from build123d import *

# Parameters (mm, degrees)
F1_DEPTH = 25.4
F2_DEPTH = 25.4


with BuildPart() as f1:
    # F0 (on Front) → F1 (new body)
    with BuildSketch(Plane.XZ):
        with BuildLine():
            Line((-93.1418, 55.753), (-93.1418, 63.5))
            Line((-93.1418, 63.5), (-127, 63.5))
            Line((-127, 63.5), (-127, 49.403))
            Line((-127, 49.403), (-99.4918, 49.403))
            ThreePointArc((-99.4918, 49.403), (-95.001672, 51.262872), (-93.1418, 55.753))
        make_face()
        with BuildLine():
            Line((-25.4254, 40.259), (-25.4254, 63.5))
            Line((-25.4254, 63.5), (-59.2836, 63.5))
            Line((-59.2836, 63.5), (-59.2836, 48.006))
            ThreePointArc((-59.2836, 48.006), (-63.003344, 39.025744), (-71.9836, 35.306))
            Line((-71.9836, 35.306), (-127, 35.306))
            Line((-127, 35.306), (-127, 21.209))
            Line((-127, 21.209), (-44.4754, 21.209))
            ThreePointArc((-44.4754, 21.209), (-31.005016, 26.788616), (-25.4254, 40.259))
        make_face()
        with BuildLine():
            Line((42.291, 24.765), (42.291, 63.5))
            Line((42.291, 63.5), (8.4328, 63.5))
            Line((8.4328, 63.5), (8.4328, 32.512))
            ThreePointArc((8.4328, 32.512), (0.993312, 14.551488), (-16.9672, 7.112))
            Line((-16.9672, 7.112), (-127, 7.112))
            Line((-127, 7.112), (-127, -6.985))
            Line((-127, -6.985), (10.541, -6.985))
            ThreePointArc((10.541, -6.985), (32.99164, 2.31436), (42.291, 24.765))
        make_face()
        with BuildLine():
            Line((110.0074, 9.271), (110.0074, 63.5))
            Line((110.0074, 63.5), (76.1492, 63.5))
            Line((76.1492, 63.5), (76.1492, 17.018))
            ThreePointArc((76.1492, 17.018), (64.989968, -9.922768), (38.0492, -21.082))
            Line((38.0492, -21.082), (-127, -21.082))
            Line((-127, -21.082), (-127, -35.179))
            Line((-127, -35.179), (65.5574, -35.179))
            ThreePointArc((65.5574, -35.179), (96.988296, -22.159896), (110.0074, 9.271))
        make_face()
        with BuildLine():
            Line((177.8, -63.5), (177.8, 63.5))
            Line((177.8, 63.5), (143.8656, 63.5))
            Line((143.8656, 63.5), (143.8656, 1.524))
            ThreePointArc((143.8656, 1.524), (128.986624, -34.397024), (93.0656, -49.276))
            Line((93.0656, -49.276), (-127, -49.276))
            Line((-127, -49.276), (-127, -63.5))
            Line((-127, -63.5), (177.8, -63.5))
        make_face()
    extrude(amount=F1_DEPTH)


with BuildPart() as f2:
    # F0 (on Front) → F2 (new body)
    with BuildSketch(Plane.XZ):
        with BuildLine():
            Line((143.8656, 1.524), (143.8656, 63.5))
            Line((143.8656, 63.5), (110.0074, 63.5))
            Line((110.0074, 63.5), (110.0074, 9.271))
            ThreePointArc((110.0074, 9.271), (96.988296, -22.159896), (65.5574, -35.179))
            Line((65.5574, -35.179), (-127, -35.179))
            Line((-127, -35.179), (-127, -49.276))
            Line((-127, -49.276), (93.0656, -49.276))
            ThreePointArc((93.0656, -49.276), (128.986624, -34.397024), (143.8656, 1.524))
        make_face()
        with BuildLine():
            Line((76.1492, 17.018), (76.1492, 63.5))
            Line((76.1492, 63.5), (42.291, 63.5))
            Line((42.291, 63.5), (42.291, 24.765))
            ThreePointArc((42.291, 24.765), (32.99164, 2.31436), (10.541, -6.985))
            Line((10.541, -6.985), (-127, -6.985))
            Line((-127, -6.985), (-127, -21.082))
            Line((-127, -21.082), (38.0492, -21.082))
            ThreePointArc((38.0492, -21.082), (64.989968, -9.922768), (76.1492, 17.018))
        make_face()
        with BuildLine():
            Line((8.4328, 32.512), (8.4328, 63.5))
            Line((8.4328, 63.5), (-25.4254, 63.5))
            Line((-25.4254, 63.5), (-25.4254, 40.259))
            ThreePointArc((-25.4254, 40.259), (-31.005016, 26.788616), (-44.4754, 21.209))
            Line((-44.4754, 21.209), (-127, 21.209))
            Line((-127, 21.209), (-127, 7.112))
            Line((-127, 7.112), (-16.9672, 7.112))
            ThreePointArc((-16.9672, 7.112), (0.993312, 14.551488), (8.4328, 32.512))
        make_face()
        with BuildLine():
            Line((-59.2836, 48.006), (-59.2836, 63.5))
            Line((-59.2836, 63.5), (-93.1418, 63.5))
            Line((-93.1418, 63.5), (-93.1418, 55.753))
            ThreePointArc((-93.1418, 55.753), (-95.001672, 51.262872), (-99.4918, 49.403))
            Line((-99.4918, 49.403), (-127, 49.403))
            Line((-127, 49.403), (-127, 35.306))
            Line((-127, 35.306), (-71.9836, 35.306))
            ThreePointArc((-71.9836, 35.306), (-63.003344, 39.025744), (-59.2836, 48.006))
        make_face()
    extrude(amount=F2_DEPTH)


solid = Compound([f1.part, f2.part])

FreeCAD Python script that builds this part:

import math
import FreeCAD as App
import Part
import Sketcher
from FreeCAD import Vector
Q = App.Units.Quantity

doc = App.newDocument("Part")
params = doc.addObject("Spreadsheet::Sheet", "Params")
for row, (alias, value) in enumerate([
    ("sketch1_radius", "1 in"),
    ("sketch1_radius2", "2.0000001 in"),
    ("sketch1_radius3", "0.5 in"),
    ("sketch1_radius4", "1.5 in"),
    ("sketch1_width", "12 in"),
    ("pad1_length", "1 in"),
    ("sketch2_radius", "2.0000001 in"),
    ("sketch2_radius2", "1 in"),
    ("sketch2_radius3", "1.5 in"),
    ("sketch2_radius4", "0.5 in"),
    ("sketch2_radius5", "1.7500001 in"),
    ("pad2_length", "1 in"),
], start=1):
    params.set(f"A{row}", alias)
    params.set(f"B{row}", "=" + value)
    params.setAlias(f"B{row}", alias)

body = doc.addObject("PartDesign::Body", "Body")
body.AllowCompound = True

# Sketch on XZ plane
sketch1 = doc.addObject("Sketcher::SketchObject", "Sketch")
body.addObject(sketch1)
sketch1.AttachmentSupport = (doc.XZ_Plane, [""])
sketch1.MapMode = "FlatFace"
sketch1.addGeometry([
    Part.LineSegment(Vector(-93.1418, 55.753, 0), Vector(-93.1418, 63.5, 0)),  # 0
    Part.LineSegment(Vector(-93.1418, 63.5, 0), Vector(-127, 63.5, 0)),  # 1
    Part.LineSegment(Vector(-127, 63.5, 0), Vector(-127, 49.403, 0)),  # 2
    Part.LineSegment(Vector(-127, 49.403, 0), Vector(-99.4918, 49.403, 0)),  # 3
    Part.ArcOfCircle(Part.Circle(Vector(-99.4918, 55.753, 0), Vector(0, 0, 1), 6.35), math.radians(-89.999998), math.radians(-0.000002)),  # 4
    Part.LineSegment(Vector(-25.4254, 40.259, 0), Vector(-25.4254, 63.5, 0)),  # 5
    Part.LineSegment(Vector(-25.4254, 63.5, 0), Vector(-59.2836, 63.5, 0)),  # 6
    Part.LineSegment(Vector(-59.2836, 63.5, 0), Vector(-59.2836, 48.006, 0)),  # 7
    Part.ArcOfCircle(Part.Circle(Vector(-71.9836, 48.006, 0), Vector(0, 0, 1), 12.7), math.radians(-89.999998), math.radians(-0.000002)),  # 8
    Part.LineSegment(Vector(-71.9836, 35.306, 0), Vector(-127, 35.306, 0)),  # 9
    Part.LineSegment(Vector(-127, 35.306, 0), Vector(-127, 21.209, 0)),  # 10
    Part.LineSegment(Vector(-127, 21.209, 0), Vector(-44.4754, 21.209, 0)),  # 11
    Part.ArcOfCircle(Part.Circle(Vector(-44.475401, 40.259001, 0), Vector(0, 0, 1), 19.050001), math.radians(-89.999998), math.radians(-0.000002)),  # 12
    Part.LineSegment(Vector(42.291, 24.765, 0), Vector(42.291, 63.5, 0)),  # 13
    Part.LineSegment(Vector(42.291, 63.5, 0), Vector(8.4328, 63.5, 0)),  # 14
    Part.LineSegment(Vector(8.4328, 63.5, 0), Vector(8.4328, 32.512, 0)),  # 15
    Part.ArcOfCircle(Part.Circle(Vector(-16.967201, 32.512001, 0), Vector(0, 0, 1), 25.400001), math.radians(-89.999998), math.radians(-0.000002)),  # 16
    Part.LineSegment(Vector(-16.9672, 7.112, 0), Vector(-127, 7.112, 0)),  # 17
    Part.LineSegment(Vector(-127, 7.112, 0), Vector(-127, -6.985, 0)),  # 18
    Part.LineSegment(Vector(-127, -6.985, 0), Vector(10.541, -6.985, 0)),  # 19
    Part.ArcOfCircle(Part.Circle(Vector(10.540999, 24.765001, 0), Vector(0, 0, 1), 31.750001), math.radians(-89.999998), math.radians(-0.000002)),  # 20
    Part.LineSegment(Vector(110.0074, 9.271, 0), Vector(110.0074, 63.5, 0)),  # 21
    Part.LineSegment(Vector(110.0074, 63.5, 0), Vector(76.1492, 63.5, 0)),  # 22
    Part.LineSegment(Vector(76.1492, 63.5, 0), Vector(76.1492, 17.018, 0)),  # 23
    Part.ArcOfCircle(Part.Circle(Vector(38.049199, 17.018001, 0), Vector(0, 0, 1), 38.100001), math.radians(-89.999998), math.radians(-0.000002)),  # 24
    Part.LineSegment(Vector(38.0492, -21.082, 0), Vector(-127, -21.082, 0)),  # 25
    Part.LineSegment(Vector(-127, -21.082, 0), Vector(-127, -35.179, 0)),  # 26
    Part.LineSegment(Vector(-127, -35.179, 0), Vector(65.5574, -35.179, 0)),  # 27
    Part.ArcOfCircle(Part.Circle(Vector(65.557399, 9.271001, 0), Vector(0, 0, 1), 44.450001), math.radians(-89.999998), math.radians(-0.000002)),  # 28
    Part.LineSegment(Vector(177.8, -63.5, 0), Vector(177.8, 63.5, 0)),  # 29
    Part.LineSegment(Vector(177.8, 63.5, 0), Vector(143.8656, 63.5, 0)),  # 30
    Part.LineSegment(Vector(143.8656, 63.5, 0), Vector(143.8656, 1.524, 0)),  # 31
    Part.ArcOfCircle(Part.Circle(Vector(93.065598, 1.524002, 0), Vector(0, 0, 1), 50.800002), math.radians(-89.999998), math.radians(-0.000002)),  # 32
    Part.LineSegment(Vector(93.0656, -49.276, 0), Vector(-127, -49.276, 0)),  # 33
    Part.LineSegment(Vector(-127, -49.276, 0), Vector(-127, -63.5, 0)),  # 34
    Part.LineSegment(Vector(-127, -63.5, 0), Vector(177.8, -63.5, 0)),  # 35
], False)
sketch1.addConstraint([
    Sketcher.Constraint("Coincident", 0, 2, 1, 1),
    Sketcher.Constraint("Coincident", 1, 2, 2, 1),
    Sketcher.Constraint("Coincident", 2, 2, 3, 1),
    Sketcher.Constraint("Tangent", 3, 2, 4, 1),
    Sketcher.Constraint("Tangent", 4, 2, 0, 1),
    Sketcher.Constraint("Coincident", 5, 2, 6, 1),
    Sketcher.Constraint("Coincident", 6, 2, 7, 1),
    Sketcher.Constraint("Tangent", 7, 2, 8, 2),
    Sketcher.Constraint("Tangent", 8, 1, 9, 1),
    Sketcher.Constraint("Coincident", 9, 2, 10, 1),
    Sketcher.Constraint("Coincident", 10, 2, 11, 1),
    Sketcher.Constraint("Tangent", 11, 2, 12, 1),
    Sketcher.Constraint("Tangent", 12, 2, 5, 1),
    Sketcher.Constraint("Coincident", 13, 2, 14, 1),
    Sketcher.Constraint("Coincident", 14, 2, 15, 1),
    Sketcher.Constraint("Tangent", 15, 2, 16, 2),
    Sketcher.Constraint("Tangent", 16, 1, 17, 1),
    Sketcher.Constraint("Coincident", 17, 2, 18, 1),
    Sketcher.Constraint("Coincident", 18, 2, 19, 1),
    Sketcher.Constraint("Tangent", 19, 2, 20, 1),
    Sketcher.Constraint("Tangent", 20, 2, 13, 1),
    Sketcher.Constraint("Coincident", 21, 2, 22, 1),
    Sketcher.Constraint("Coincident", 22, 2, 23, 1),
    Sketcher.Constraint("Tangent", 23, 2, 24, 2),
    Sketcher.Constraint("Tangent", 24, 1, 25, 1),
    Sketcher.Constraint("Coincident", 25, 2, 26, 1),
    Sketcher.Constraint("Coincident", 26, 2, 27, 1),
    Sketcher.Constraint("Tangent", 27, 2, 28, 1),
    Sketcher.Constraint("Tangent", 28, 2, 21, 1),
    Sketcher.Constraint("Coincident", 29, 2, 30, 1),
    Sketcher.Constraint("Coincident", 30, 2, 31, 1),
    Sketcher.Constraint("Tangent", 31, 2, 32, 2),
    Sketcher.Constraint("Tangent", 32, 1, 33, 1),
    Sketcher.Constraint("Coincident", 33, 2, 34, 1),
    Sketcher.Constraint("Coincident", 34, 2, 35, 1),
    Sketcher.Constraint("Coincident", 35, 2, 29, 1),
    Sketcher.Constraint("Vertical", 0),
    Sketcher.Constraint("Horizontal", 1),
    Sketcher.Constraint("Vertical", 2),
    Sketcher.Constraint("Horizontal", 3),
    Sketcher.Constraint("Vertical", 5),
    Sketcher.Constraint("Horizontal", 6),
    Sketcher.Constraint("Vertical", 7),
    Sketcher.Constraint("Horizontal", 9),
    Sketcher.Constraint("Vertical", 10),
    Sketcher.Constraint("Horizontal", 11),
    Sketcher.Constraint("Vertical", 13),
    Sketcher.Constraint("Horizontal", 14),
    Sketcher.Constraint("Vertical", 15),
    Sketcher.Constraint("Horizontal", 17),
    Sketcher.Constraint("Vertical", 18),
    Sketcher.Constraint("Horizontal", 19),
    Sketcher.Constraint("Vertical", 21),
    Sketcher.Constraint("Horizontal", 22),
    Sketcher.Constraint("Vertical", 23),
    Sketcher.Constraint("Horizontal", 25),
    Sketcher.Constraint("Vertical", 26),
    Sketcher.Constraint("Horizontal", 27),
    Sketcher.Constraint("Vertical", 29),
    Sketcher.Constraint("Horizontal", 30),
    Sketcher.Constraint("Vertical", 31),
    Sketcher.Constraint("Horizontal", 33),
    Sketcher.Constraint("Vertical", 34),
    Sketcher.Constraint("Horizontal", 35),
    Sketcher.Constraint("Symmetric", 1, 2, 34, 2, -1),
    Sketcher.Constraint("Horizontal", 1, 2, 5, 2),
    Sketcher.Constraint("Horizontal", 6, 2, 13, 2),
    Sketcher.Constraint("Horizontal", 14, 2, 21, 2),
    Sketcher.Constraint("Horizontal", 22, 2, 29, 2),
    Sketcher.Constraint("Vertical", 2, 2, 9, 2),
    Sketcher.Constraint("Vertical", 10, 2, 17, 2),
    Sketcher.Constraint("Vertical", 18, 2, 25, 2),
    Sketcher.Constraint("Equal", 1, 6),
    Sketcher.Constraint("Equal", 6, 14),
    Sketcher.Constraint("Equal", 14, 22),
    Sketcher.Constraint("Equal", 2, 10),
    Sketcher.Constraint("Equal", 10, 18),
    Sketcher.Constraint("Equal", 18, 26),
    Sketcher.Constraint("Radius", 16, Q("1 in")),
    Sketcher.Constraint("Radius", 32, Q("2.0000001 in")),
    Sketcher.Constraint("Radius", 8, Q("0.5 in")),
    Sketcher.Constraint("Radius", 24, Q("1.5 in")),
    Sketcher.Constraint("DistanceX", 35, 1, 35, 2, Q("12 in")),
    Sketcher.Constraint("DistanceY", 29, 1, 29, 2, Q("5 in")),
    Sketcher.Constraint("Radius", 4, Q("0.25 in")),
    Sketcher.Constraint("Radius", 12, Q("0.75 in")),
    Sketcher.Constraint("Radius", 20, Q("1.25 in")),
    Sketcher.Constraint("Radius", 28, Q("1.7500001 in")),
    Sketcher.Constraint("DistanceX", 1, 2, -1, 1, Q("5 in")),
    Sketcher.Constraint("DistanceY", 7, 2, 7, 1, Q("0.61 in")),
    Sketcher.Constraint("DistanceY", 15, 2, 15, 1, Q("1.22 in")),
    Sketcher.Constraint("DistanceY", 23, 2, 23, 1, Q("1.83 in")),
    Sketcher.Constraint("DistanceY", 31, 2, 31, 1, Q("2.44 in")),
    Sketcher.Constraint("DistanceX", 1, 2, 1, 1, Q("1.333 in")),
    Sketcher.Constraint("DistanceX", 9, 2, 9, 1, Q("2.166 in")),
    Sketcher.Constraint("DistanceX", 17, 2, 17, 1, Q("4.332 in")),
    Sketcher.Constraint("DistanceX", 25, 2, 25, 1, Q("6.498 in")),
    Sketcher.Constraint("DistanceX", 30, 2, 30, 1, Q("1.336 in")),
    Sketcher.Constraint("DistanceY", 0, 1, 0, 2, Q("0.305 in")),
])
sketch1.setExpression("Constraints[78]", "Params.sketch1_radius")
sketch1.setExpression("Constraints[79]", "Params.sketch1_radius2")
sketch1.setExpression("Constraints[80]", "Params.sketch1_radius3")
sketch1.setExpression("Constraints[81]", "Params.sketch1_radius4")
sketch1.setExpression("Constraints[82]", "Params.sketch1_width")
pad1 = doc.addObject("PartDesign::Pad", "Pad")
body.addObject(pad1)
pad1.Profile = sketch1
pad1.setExpression("Length", "Params.pad1_length")
body2 = doc.addObject("PartDesign::Body", "Body001")
body2.AllowCompound = True

# Sketch on XZ plane
sketch2 = doc.addObject("Sketcher::SketchObject", "Sketch001")
body2.addObject(sketch2)
sketch2.AttachmentSupport = (doc.getObject("XZ_Plane001"), [""])
sketch2.MapMode = "FlatFace"
sketch2.addGeometry([
    Part.LineSegment(Vector(143.8656, 1.524, 0), Vector(143.8656, 63.5, 0)),  # 0
    Part.LineSegment(Vector(143.8656, 63.5, 0), Vector(110.0074, 63.5, 0)),  # 1
    Part.LineSegment(Vector(110.0074, 63.5, 0), Vector(110.0074, 9.271, 0)),  # 2
    Part.ArcOfCircle(Part.Circle(Vector(65.557399, 9.271001, 0), Vector(0, 0, 1), 44.450001), math.radians(-89.999998), math.radians(-0.000002)),  # 3
    Part.LineSegment(Vector(65.5574, -35.179, 0), Vector(-127, -35.179, 0)),  # 4
    Part.LineSegment(Vector(-127, -35.179, 0), Vector(-127, -49.276, 0)),  # 5
    Part.LineSegment(Vector(-127, -49.276, 0), Vector(93.0656, -49.276, 0)),  # 6
    Part.ArcOfCircle(Part.Circle(Vector(93.065598, 1.524002, 0), Vector(0, 0, 1), 50.800002), math.radians(-89.999998), math.radians(-0.000002)),  # 7
    Part.LineSegment(Vector(76.1492, 17.018, 0), Vector(76.1492, 63.5, 0)),  # 8
    Part.LineSegment(Vector(76.1492, 63.5, 0), Vector(42.291, 63.5, 0)),  # 9
    Part.LineSegment(Vector(42.291, 63.5, 0), Vector(42.291, 24.765, 0)),  # 10
    Part.ArcOfCircle(Part.Circle(Vector(10.540999, 24.765001, 0), Vector(0, 0, 1), 31.750001), math.radians(-89.999998), math.radians(-0.000002)),  # 11
    Part.LineSegment(Vector(10.541, -6.985, 0), Vector(-127, -6.985, 0)),  # 12
    Part.LineSegment(Vector(-127, -6.985, 0), Vector(-127, -21.082, 0)),  # 13
    Part.LineSegment(Vector(-127, -21.082, 0), Vector(38.0492, -21.082, 0)),  # 14
    Part.ArcOfCircle(Part.Circle(Vector(38.049199, 17.018001, 0), Vector(0, 0, 1), 38.100001), math.radians(-89.999998), math.radians(-0.000002)),  # 15
    Part.LineSegment(Vector(8.4328, 32.512, 0), Vector(8.4328, 63.5, 0)),  # 16
    Part.LineSegment(Vector(8.4328, 63.5, 0), Vector(-25.4254, 63.5, 0)),  # 17
    Part.LineSegment(Vector(-25.4254, 63.5, 0), Vector(-25.4254, 40.259, 0)),  # 18
    Part.ArcOfCircle(Part.Circle(Vector(-44.475401, 40.259001, 0), Vector(0, 0, 1), 19.050001), math.radians(-89.999998), math.radians(-0.000002)),  # 19
    Part.LineSegment(Vector(-44.4754, 21.209, 0), Vector(-127, 21.209, 0)),  # 20
    Part.LineSegment(Vector(-127, 21.209, 0), Vector(-127, 7.112, 0)),  # 21
    Part.LineSegment(Vector(-127, 7.112, 0), Vector(-16.9672, 7.112, 0)),  # 22
    Part.ArcOfCircle(Part.Circle(Vector(-16.967201, 32.512001, 0), Vector(0, 0, 1), 25.400001), math.radians(-89.999998), math.radians(-0.000002)),  # 23
    Part.LineSegment(Vector(-59.2836, 48.006, 0), Vector(-59.2836, 63.5, 0)),  # 24
    Part.LineSegment(Vector(-59.2836, 63.5, 0), Vector(-93.1418, 63.5, 0)),  # 25
    Part.LineSegment(Vector(-93.1418, 63.5, 0), Vector(-93.1418, 55.753, 0)),  # 26
    Part.ArcOfCircle(Part.Circle(Vector(-99.4918, 55.753, 0), Vector(0, 0, 1), 6.35), math.radians(-89.999998), math.radians(-0.000002)),  # 27
    Part.LineSegment(Vector(-99.4918, 49.403, 0), Vector(-127, 49.403, 0)),  # 28
    Part.LineSegment(Vector(-127, 49.403, 0), Vector(-127, 35.306, 0)),  # 29
    Part.LineSegment(Vector(-127, 35.306, 0), Vector(-71.9836, 35.306, 0)),  # 30
    Part.ArcOfCircle(Part.Circle(Vector(-71.9836, 48.006, 0), Vector(0, 0, 1), 12.7), math.radians(-89.999998), math.radians(-0.000002)),  # 31
], False)
sketch2.addConstraint([
    Sketcher.Constraint("Coincident", 0, 2, 1, 1),
    Sketcher.Constraint("Coincident", 1, 2, 2, 1),
    Sketcher.Constraint("Tangent", 2, 2, 3, 2),
    Sketcher.Constraint("Tangent", 3, 1, 4, 1),
    Sketcher.Constraint("Coincident", 4, 2, 5, 1),
    Sketcher.Constraint("Coincident", 5, 2, 6, 1),
    Sketcher.Constraint("Tangent", 6, 2, 7, 1),
    Sketcher.Constraint("Tangent", 7, 2, 0, 1),
    Sketcher.Constraint("Coincident", 8, 2, 9, 1),
    Sketcher.Constraint("Coincident", 9, 2, 10, 1),
    Sketcher.Constraint("Tangent", 10, 2, 11, 2),
    Sketcher.Constraint("Tangent", 11, 1, 12, 1),
    Sketcher.Constraint("Coincident", 12, 2, 13, 1),
    Sketcher.Constraint("Coincident", 13, 2, 14, 1),
    Sketcher.Constraint("Tangent", 14, 2, 15, 1),
    Sketcher.Constraint("Tangent", 15, 2, 8, 1),
    Sketcher.Constraint("Coincident", 16, 2, 17, 1),
    Sketcher.Constraint("Coincident", 17, 2, 18, 1),
    Sketcher.Constraint("Tangent", 18, 2, 19, 2),
    Sketcher.Constraint("Tangent", 19, 1, 20, 1),
    Sketcher.Constraint("Coincident", 20, 2, 21, 1),
    Sketcher.Constraint("Coincident", 21, 2, 22, 1),
    Sketcher.Constraint("Tangent", 22, 2, 23, 1),
    Sketcher.Constraint("Tangent", 23, 2, 16, 1),
    Sketcher.Constraint("Coincident", 24, 2, 25, 1),
    Sketcher.Constraint("Coincident", 25, 2, 26, 1),
    Sketcher.Constraint("Tangent", 26, 2, 27, 2),
    Sketcher.Constraint("Tangent", 27, 1, 28, 1),
    Sketcher.Constraint("Coincident", 28, 2, 29, 1),
    Sketcher.Constraint("Coincident", 29, 2, 30, 1),
    Sketcher.Constraint("Tangent", 30, 2, 31, 1),
    Sketcher.Constraint("Tangent", 31, 2, 24, 1),
    Sketcher.Constraint("Vertical", 0),
    Sketcher.Constraint("Horizontal", 1),
    Sketcher.Constraint("Vertical", 2),
    Sketcher.Constraint("Horizontal", 4),
    Sketcher.Constraint("Vertical", 5),
    Sketcher.Constraint("Horizontal", 6),
    Sketcher.Constraint("Vertical", 8),
    Sketcher.Constraint("Horizontal", 9),
    Sketcher.Constraint("Vertical", 10),
    Sketcher.Constraint("Horizontal", 12),
    Sketcher.Constraint("Vertical", 13),
    Sketcher.Constraint("Horizontal", 14),
    Sketcher.Constraint("Vertical", 16),
    Sketcher.Constraint("Horizontal", 17),
    Sketcher.Constraint("Vertical", 18),
    Sketcher.Constraint("Horizontal", 20),
    Sketcher.Constraint("Vertical", 21),
    Sketcher.Constraint("Horizontal", 22),
    Sketcher.Constraint("Vertical", 24),
    Sketcher.Constraint("Horizontal", 25),
    Sketcher.Constraint("Vertical", 26),
    Sketcher.Constraint("Horizontal", 28),
    Sketcher.Constraint("Vertical", 29),
    Sketcher.Constraint("Horizontal", 30),
    Sketcher.Constraint("Horizontal", 1, 2, 8, 2),
    Sketcher.Constraint("Horizontal", 9, 2, 16, 2),
    Sketcher.Constraint("Horizontal", 17, 2, 24, 2),
    Sketcher.Constraint("Vertical", 5, 2, 12, 2),
    Sketcher.Constraint("Vertical", 13, 2, 20, 2),
    Sketcher.Constraint("Vertical", 21, 2, 28, 2),
    Sketcher.Constraint("Equal", 1, 9),
    Sketcher.Constraint("Equal", 9, 17),
    Sketcher.Constraint("Equal", 17, 25),
    Sketcher.Constraint("Equal", 5, 13),
    Sketcher.Constraint("Equal", 13, 21),
    Sketcher.Constraint("Equal", 21, 29),
    Sketcher.Constraint("Radius", 7, Q("2.0000001 in")),
    Sketcher.Constraint("Radius", 23, Q("1 in")),
    Sketcher.Constraint("Radius", 15, Q("1.5 in")),
    Sketcher.Constraint("Radius", 31, Q("0.5 in")),
    Sketcher.Constraint("Radius", 3, Q("1.7500001 in")),
    Sketcher.Constraint("Radius", 11, Q("1.25 in")),
    Sketcher.Constraint("Radius", 19, Q("0.75 in")),
    Sketcher.Constraint("Radius", 27, Q("0.25 in")),
    Sketcher.Constraint("DistanceX", 4, 2, -1, 1, Q("5 in")),
    Sketcher.Constraint("DistanceY", 0, 1, 0, 2, Q("2.44 in")),
    Sketcher.Constraint("DistanceY", 8, 1, 8, 2, Q("1.83 in")),
    Sketcher.Constraint("DistanceY", 16, 1, 16, 2, Q("1.22 in")),
    Sketcher.Constraint("DistanceY", 24, 1, 24, 2, Q("0.61 in")),
    Sketcher.Constraint("DistanceY", -1, 1, 0, 2, Q("2.5 in")),
    Sketcher.Constraint("DistanceX", 1, 2, 1, 1, Q("1.333 in")),
    Sketcher.Constraint("DistanceX", 4, 2, 4, 1, Q("7.581 in")),
    Sketcher.Constraint("DistanceX", 12, 2, 12, 1, Q("5.415 in")),
    Sketcher.Constraint("DistanceX", 20, 2, 20, 1, Q("3.249 in")),
    Sketcher.Constraint("DistanceX", 28, 2, 28, 1, Q("1.083 in")),
    Sketcher.Constraint("DistanceY", 2, 2, 2, 1, Q("2.135 in")),
])
sketch2.setExpression("Constraints[68]", "Params.sketch2_radius")
sketch2.setExpression("Constraints[69]", "Params.sketch2_radius2")
sketch2.setExpression("Constraints[70]", "Params.sketch2_radius3")
sketch2.setExpression("Constraints[71]", "Params.sketch2_radius4")
sketch2.setExpression("Constraints[72]", "Params.sketch2_radius5")
pad2 = doc.addObject("PartDesign::Pad", "Pad001")
body2.addObject(pad2)
pad2.Profile = sketch2
pad2.setExpression("Length", "Params.pad2_length")

doc.recompute()
